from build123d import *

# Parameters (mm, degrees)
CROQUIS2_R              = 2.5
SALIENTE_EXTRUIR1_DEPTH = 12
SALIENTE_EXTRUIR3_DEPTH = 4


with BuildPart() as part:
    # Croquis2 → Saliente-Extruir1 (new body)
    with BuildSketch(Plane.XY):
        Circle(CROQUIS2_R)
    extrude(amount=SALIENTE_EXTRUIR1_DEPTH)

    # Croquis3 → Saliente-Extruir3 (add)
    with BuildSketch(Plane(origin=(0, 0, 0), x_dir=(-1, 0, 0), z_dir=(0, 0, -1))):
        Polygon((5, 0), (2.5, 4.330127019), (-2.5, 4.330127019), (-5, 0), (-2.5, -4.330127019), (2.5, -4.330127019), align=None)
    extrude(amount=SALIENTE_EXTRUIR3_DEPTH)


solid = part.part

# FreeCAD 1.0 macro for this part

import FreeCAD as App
import Part
import Sketcher
from FreeCAD import Vector
Q = App.Units.Quantity

doc = App.newDocument("Part")
body = doc.addObject("PartDesign::Body", "Body")

sketch1 = doc.addObject("Sketcher::SketchObject", "Sketch")
body.addObject(sketch1)
sketch1.AttachmentSupport = (doc.XY_Plane, [""])
sketch1.MapMode = "FlatFace"
sketch1.addGeometry(Part.Circle(Vector(0, 0, 0), Vector(0, 0, 1), 2.5), False)
sketch1.addConstraint(Sketcher.Constraint("Coincident", 0, 3, -1, 1))
sketch1.addConstraint(Sketcher.Constraint("Diameter", 0, Q("5 mm")))
pad1 = doc.addObject("PartDesign::Pad", "Pad")
body.addObject(pad1)
pad1.Profile = sketch1
pad1.Length = 12

sketch2 = doc.addObject("Sketcher::SketchObject", "Sketch001")
body.addObject(sketch2)
sketch2.AttachmentSupport = (doc.XY_Plane, [""])
sketch2.MapMode = "FlatFace"
sketch2.addGeometry(Part.LineSegment(Vector(-5, 0, 0), Vector(-2, 4, 0)), False)
sketch2.addGeometry(Part.LineSegment(Vector(-2, 4, 0), Vector(2, 4, 0)), False)
sketch2.addGeometry(Part.LineSegment(Vector(2, 4, 0), Vector(5, 0, 0)), False)
sketch2.addGeometry(Part.LineSegment(Vector(5, 0, 0), Vector(2, -4, 0)), False)
sketch2.addGeometry(Part.LineSegment(Vector(2, -4, 0), Vector(-2, -4, 0)), False)
sketch2.addGeometry(Part.LineSegment(Vector(-2, -4, 0), Vector(-5, 0, 0)), False)
sketch2.addConstraint(Sketcher.Constraint("Coincident", 0, 2, 1, 1))
sketch2.addConstraint(Sketcher.Constraint("Coincident", 1, 2, 2, 1))
sketch2.addConstraint(Sketcher.Constraint("Coincident", 2, 2, 3, 1))
sketch2.addConstraint(Sketcher.Constraint("Coincident", 3, 2, 4, 1))
sketch2.addConstraint(Sketcher.Constraint("Coincident", 4, 2, 5, 1))
sketch2.addConstraint(Sketcher.Constraint("Coincident", 5, 2, 0, 1))
sketch2.addConstraint(Sketcher.Constraint("Horizontal", 1))
sketch2.addConstraint(Sketcher.Constraint("Horizontal", 4))
sketch2.addConstraint(Sketcher.Constraint("Symmetric", 0, 2, 3, 2, -1, 1))
sketch2.addConstraint(Sketcher.Constraint("Symmetric", 2, 2, 5, 2, -1, 1))
sketch2.addConstraint(Sketcher.Constraint("PointOnObject", 2, 2, -1))
sketch2.addConstraint(Sketcher.Constraint("Parallel", 2, 5))
sketch2.addConstraint(Sketcher.Constraint("Vertical", 1, 2, 3, 2))
sketch2.addConstraint(Sketcher.Constraint("DistanceX", 1, 1, 1, 2, Q("5 mm")))
sketch2.addConstraint(Sketcher.Constraint("Angle", 0, Q("60 deg")))
sketch2.addConstraint(Sketcher.Constraint("Distance", 0, Q("5 mm")))
pad2 = doc.addObject("PartDesign::Pad", "Pad001")
body.addObject(pad2)
pad2.Profile = sketch2
pad2.Length = 4
pad2.Reversed = True

doc.recompute()
